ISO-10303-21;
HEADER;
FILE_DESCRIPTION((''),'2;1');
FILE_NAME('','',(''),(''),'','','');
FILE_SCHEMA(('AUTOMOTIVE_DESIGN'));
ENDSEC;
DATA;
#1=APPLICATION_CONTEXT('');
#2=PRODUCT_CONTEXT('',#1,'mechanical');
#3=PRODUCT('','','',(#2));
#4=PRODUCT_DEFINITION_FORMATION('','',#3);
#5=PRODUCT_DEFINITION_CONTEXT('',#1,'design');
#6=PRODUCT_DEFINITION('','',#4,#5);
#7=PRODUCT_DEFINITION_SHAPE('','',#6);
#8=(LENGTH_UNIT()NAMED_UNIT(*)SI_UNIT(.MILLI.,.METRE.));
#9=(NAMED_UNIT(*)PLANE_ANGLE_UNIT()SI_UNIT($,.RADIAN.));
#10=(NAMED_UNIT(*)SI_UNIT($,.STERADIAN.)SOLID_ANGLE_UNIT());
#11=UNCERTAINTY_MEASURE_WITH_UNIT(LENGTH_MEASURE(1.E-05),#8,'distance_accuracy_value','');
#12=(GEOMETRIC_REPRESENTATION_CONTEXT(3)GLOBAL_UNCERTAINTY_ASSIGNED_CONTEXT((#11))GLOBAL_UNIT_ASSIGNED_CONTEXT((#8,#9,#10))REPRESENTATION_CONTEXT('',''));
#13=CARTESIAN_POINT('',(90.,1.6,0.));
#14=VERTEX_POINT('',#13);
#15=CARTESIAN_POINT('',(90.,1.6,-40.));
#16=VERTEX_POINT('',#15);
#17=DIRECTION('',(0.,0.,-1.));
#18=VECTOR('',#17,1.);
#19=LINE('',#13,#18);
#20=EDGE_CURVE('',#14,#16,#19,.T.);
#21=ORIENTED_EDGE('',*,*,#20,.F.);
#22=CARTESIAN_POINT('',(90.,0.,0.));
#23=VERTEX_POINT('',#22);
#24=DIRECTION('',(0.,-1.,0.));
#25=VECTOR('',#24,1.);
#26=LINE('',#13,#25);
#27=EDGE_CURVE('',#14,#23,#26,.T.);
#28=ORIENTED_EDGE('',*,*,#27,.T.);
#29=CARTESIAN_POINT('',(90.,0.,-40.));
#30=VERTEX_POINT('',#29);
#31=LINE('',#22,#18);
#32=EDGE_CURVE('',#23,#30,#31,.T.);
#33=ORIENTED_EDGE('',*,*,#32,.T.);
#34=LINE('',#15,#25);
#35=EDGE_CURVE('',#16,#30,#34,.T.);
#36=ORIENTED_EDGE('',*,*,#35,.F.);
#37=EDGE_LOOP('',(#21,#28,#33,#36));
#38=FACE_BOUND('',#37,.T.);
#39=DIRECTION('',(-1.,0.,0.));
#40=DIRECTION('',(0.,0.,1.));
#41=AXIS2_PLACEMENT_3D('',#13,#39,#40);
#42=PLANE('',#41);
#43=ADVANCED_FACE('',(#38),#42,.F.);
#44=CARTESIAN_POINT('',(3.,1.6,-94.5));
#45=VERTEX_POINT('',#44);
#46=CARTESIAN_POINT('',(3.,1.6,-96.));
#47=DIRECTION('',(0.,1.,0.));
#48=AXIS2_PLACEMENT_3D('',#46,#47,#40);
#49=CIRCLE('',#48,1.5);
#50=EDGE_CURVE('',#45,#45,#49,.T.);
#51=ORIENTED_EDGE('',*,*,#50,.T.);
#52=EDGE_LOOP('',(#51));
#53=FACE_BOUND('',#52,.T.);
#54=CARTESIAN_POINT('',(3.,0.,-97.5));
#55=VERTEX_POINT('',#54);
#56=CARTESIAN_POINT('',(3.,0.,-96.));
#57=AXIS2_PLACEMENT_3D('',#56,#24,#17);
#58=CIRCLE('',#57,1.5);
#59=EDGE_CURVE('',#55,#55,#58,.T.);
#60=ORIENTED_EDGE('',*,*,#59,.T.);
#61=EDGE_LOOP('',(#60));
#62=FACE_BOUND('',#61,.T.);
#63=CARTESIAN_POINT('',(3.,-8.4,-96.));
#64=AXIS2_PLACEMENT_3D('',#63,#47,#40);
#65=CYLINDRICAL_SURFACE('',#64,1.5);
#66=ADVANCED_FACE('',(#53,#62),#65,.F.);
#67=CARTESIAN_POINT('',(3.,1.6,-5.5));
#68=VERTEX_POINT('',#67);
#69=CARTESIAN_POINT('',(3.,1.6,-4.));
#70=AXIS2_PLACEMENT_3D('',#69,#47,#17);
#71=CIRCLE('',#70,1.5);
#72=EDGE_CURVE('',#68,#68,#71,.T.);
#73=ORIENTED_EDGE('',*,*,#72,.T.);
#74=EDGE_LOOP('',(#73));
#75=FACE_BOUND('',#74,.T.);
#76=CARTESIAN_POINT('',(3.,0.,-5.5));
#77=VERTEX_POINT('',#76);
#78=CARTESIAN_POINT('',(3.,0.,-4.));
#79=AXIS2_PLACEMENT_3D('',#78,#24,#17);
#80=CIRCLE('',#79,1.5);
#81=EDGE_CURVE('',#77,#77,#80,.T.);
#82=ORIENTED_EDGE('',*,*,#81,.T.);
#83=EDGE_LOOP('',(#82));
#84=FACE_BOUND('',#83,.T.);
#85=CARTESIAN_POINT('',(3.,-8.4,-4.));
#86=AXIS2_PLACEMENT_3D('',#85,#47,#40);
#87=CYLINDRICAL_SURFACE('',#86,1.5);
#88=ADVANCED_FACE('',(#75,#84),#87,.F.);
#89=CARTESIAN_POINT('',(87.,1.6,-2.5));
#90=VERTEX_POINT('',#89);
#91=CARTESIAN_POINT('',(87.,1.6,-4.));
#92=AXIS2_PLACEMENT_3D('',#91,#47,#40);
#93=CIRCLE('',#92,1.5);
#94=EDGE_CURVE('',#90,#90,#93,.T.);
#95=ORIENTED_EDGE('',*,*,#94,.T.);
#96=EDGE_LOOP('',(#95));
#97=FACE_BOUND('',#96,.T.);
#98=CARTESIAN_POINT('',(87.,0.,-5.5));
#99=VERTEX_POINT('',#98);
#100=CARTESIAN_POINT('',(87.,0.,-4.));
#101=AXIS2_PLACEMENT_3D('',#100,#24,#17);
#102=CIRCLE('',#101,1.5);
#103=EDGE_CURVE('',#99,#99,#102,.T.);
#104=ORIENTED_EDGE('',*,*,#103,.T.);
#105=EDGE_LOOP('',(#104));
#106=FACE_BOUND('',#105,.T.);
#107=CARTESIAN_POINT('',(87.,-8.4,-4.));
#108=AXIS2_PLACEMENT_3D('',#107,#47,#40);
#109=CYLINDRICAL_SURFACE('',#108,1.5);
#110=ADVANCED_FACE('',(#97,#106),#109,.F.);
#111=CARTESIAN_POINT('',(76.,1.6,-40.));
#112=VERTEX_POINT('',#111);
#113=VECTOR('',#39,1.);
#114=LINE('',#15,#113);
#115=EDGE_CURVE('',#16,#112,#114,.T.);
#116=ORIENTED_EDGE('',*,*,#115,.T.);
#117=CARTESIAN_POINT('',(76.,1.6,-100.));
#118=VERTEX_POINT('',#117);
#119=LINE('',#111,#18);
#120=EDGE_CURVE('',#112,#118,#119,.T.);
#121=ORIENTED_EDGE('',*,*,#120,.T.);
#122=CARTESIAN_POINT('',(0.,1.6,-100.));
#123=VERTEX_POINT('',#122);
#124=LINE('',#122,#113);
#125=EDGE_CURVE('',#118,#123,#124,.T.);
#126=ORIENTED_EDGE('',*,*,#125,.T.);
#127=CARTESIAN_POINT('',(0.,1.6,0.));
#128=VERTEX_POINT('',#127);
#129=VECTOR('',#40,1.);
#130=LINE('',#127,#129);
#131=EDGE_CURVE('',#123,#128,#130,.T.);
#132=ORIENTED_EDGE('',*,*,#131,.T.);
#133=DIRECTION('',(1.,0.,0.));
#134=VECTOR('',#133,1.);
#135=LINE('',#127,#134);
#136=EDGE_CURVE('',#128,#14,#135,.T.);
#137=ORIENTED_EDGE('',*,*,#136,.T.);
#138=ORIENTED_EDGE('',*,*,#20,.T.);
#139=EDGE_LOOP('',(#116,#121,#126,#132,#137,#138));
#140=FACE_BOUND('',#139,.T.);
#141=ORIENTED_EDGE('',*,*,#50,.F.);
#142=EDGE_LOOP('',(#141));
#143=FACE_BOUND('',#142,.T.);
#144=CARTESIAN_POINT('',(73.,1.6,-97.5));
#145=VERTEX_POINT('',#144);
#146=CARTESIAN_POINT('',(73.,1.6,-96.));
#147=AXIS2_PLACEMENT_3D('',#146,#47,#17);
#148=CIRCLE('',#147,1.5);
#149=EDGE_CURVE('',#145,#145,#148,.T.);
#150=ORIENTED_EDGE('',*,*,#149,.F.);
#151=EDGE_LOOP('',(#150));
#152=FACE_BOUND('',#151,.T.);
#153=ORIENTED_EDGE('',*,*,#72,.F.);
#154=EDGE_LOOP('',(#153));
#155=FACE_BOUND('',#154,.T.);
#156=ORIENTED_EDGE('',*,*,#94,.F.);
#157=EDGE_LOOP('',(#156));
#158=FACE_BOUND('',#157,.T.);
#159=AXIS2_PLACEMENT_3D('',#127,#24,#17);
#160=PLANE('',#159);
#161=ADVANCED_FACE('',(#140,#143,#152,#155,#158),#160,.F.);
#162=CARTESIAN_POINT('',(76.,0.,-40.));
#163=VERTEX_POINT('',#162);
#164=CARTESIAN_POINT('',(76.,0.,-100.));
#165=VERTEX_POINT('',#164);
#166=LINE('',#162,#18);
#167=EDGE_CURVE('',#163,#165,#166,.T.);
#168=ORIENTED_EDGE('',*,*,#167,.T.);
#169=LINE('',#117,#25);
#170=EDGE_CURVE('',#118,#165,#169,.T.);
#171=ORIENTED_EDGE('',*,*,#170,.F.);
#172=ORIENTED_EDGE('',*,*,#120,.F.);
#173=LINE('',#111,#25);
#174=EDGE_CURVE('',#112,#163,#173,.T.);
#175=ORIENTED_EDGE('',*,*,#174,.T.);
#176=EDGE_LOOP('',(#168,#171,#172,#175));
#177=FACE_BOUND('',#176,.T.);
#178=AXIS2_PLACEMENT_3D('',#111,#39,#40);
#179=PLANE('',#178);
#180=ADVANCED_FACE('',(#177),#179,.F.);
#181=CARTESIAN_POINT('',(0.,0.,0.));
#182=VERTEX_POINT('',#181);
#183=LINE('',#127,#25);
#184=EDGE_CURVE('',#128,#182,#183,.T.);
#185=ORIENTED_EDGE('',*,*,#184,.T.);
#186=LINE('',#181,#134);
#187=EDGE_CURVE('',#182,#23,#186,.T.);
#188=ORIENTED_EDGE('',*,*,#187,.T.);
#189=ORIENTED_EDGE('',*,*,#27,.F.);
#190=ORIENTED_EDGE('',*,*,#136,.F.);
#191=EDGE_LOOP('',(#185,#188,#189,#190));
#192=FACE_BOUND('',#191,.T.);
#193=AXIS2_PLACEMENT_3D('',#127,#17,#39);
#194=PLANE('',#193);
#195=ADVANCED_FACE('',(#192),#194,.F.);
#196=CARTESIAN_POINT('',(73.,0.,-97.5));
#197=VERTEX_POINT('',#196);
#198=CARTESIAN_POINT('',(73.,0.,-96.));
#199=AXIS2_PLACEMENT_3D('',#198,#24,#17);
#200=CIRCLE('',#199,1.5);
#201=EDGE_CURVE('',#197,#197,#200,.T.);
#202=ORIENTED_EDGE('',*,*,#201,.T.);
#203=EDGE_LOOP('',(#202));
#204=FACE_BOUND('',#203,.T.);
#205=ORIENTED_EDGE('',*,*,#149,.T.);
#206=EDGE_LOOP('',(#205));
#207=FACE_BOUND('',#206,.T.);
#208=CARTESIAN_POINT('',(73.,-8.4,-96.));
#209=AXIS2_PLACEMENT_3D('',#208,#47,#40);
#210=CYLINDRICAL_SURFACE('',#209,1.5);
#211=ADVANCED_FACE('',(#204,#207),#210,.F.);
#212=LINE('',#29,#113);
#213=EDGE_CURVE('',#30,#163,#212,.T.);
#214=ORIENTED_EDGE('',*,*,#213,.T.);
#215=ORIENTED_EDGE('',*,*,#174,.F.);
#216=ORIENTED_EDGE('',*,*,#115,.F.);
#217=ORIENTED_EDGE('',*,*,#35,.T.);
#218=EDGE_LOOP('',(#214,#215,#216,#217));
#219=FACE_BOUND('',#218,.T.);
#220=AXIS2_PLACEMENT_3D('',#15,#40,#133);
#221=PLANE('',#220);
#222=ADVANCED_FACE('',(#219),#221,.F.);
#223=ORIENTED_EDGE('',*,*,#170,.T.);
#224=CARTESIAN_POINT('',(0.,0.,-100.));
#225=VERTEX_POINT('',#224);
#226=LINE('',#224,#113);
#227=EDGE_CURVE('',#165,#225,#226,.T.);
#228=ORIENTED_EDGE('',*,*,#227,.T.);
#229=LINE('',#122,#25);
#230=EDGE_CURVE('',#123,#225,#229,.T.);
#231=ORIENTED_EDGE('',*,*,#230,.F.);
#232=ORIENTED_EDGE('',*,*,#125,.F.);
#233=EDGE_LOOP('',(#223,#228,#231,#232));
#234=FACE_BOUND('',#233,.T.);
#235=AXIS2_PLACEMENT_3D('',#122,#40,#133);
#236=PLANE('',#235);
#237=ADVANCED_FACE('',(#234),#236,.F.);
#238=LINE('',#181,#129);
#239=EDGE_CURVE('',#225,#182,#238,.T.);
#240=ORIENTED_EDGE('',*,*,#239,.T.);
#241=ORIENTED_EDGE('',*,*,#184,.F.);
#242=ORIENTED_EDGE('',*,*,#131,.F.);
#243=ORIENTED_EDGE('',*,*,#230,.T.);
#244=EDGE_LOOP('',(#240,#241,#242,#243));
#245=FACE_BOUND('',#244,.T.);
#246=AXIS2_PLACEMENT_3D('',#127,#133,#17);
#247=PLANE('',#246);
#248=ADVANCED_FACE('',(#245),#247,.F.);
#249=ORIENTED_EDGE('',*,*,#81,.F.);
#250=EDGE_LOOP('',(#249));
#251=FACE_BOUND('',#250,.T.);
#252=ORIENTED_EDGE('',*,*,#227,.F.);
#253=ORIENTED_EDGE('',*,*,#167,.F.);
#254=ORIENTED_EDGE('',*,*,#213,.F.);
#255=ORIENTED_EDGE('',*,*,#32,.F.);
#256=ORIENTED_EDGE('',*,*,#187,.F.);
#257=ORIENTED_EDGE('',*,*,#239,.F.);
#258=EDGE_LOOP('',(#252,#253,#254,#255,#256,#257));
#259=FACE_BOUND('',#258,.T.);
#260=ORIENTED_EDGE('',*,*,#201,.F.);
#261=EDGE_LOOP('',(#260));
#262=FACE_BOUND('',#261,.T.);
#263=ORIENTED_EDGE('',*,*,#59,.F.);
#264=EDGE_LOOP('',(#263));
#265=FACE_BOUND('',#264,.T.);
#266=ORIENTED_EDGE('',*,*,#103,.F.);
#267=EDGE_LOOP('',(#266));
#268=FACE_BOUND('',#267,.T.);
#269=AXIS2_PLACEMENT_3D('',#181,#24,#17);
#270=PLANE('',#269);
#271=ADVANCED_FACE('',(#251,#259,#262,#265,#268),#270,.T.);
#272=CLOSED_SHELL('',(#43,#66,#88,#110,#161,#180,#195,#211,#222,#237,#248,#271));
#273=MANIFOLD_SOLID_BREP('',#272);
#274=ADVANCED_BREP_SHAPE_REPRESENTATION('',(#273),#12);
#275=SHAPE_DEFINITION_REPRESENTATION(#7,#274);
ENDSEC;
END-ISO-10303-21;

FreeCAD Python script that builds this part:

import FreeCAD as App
import Part
import Sketcher

V = App.Vector


def add_polygon(sketch, points):
    """Adds a closed chain of lines whose ends are joined by coincident constraints."""
    first, n = sketch.GeometryCount, len(points)
    for a, b in zip(points, points[1:] + points[:1]):
        sketch.addGeometry(Part.LineSegment(App.Vector(*a, 0), App.Vector(*b, 0)), False)
    for i in range(n):
        sketch.addConstraint(Sketcher.Constraint("Coincident", first + i, 2, first + (i + 1) % n, 1))

doc = App.newDocument("Part")
body = doc.addObject("PartDesign::Body", "Body")

# Sketch on XZ plane
sketch1 = body.newObject("Sketcher::SketchObject", "Sketch")
sketch1.AttachmentSupport = (doc.getObject("XZ_Plane"), [""])
sketch1.MapMode = "FlatFace"
add_polygon(sketch1, [(90, 0), (90, -40), (76, -40), (76, -100), (0, -100), (0, 0)])  # lines 0-5
sketch1.addConstraint([
    Sketcher.Constraint("Vertical", 0),
    Sketcher.Constraint("Horizontal", 1),
    Sketcher.Constraint("Vertical", 2),
    Sketcher.Constraint("Horizontal", 3),
    Sketcher.Constraint("Vertical", 4),
    Sketcher.Constraint("Horizontal", 5),
    Sketcher.Constraint("Coincident", 4, 2, -1, 1),
    Sketcher.Constraint("DistanceX", 1, 2, 1, 1, 14.0),
    Sketcher.Constraint("DistanceX", 3, 2, 3, 1, 76.0),
    Sketcher.Constraint("DistanceY", 0, 2, 0, 1, 40.0),
    Sketcher.Constraint("DistanceY", 2, 2, 2, 1, 60.0),
])
pad1 = body.newObject("PartDesign::Pad", "Pad")
pad1.Profile = sketch1
pad1.Length = 1.6
pad1.Reversed = True

# Sketch on XZ plane
sketch2 = body.newObject("Sketcher::SketchObject", "Sketch001")
sketch2.AttachmentSupport = (doc.getObject("XZ_Plane"), [""])
sketch2.MapMode = "FlatFace"
sketch2.AttachmentOffset = App.Placement(V(0, 0, -1.6), App.Rotation())
sketch2.addGeometry([
    Part.Circle(V(3, -96, 0), V(0, 0, 1), 1.5),
    Part.Circle(V(3, -4, 0), V(0, 0, 1), 1.5),
    Part.Circle(V(73, -96, 0), V(0, 0, 1), 1.5),
    Part.Circle(V(87, -4, 0), V(0, 0, 1), 1.5),
], False)
sketch2.addConstraint([
    Sketcher.Constraint("Equal", 0, 1),
    Sketcher.Constraint("Equal", 1, 2),
    Sketcher.Constraint("Equal", 2, 3),
    Sketcher.Constraint("Horizontal", 0, 3, 2, 3),
    Sketcher.Constraint("Horizontal", 1, 3, 3, 3),
    Sketcher.Constraint("Vertical", 0, 3, 1, 3),
    Sketcher.Constraint("Diameter", 0, 3.0),
    Sketcher.Constraint("DistanceX", -1, 1, 0, 3, 3.0),
    Sketcher.Constraint("DistanceY", 0, 3, -1, 1, 96.0),
    Sketcher.Constraint("DistanceY", 1, 3, -1, 1, 4.0),
    Sketcher.Constraint("DistanceX", -1, 1, 2, 3, 73.0),
    Sketcher.Constraint("DistanceX", -1, 1, 3, 3, 87.0),
])
pocket1 = body.newObject("PartDesign::Pocket", "Pocket")
pocket1.Profile = sketch2
pocket1.Length = 10
pocket1.Reversed = True

doc.recompute()
